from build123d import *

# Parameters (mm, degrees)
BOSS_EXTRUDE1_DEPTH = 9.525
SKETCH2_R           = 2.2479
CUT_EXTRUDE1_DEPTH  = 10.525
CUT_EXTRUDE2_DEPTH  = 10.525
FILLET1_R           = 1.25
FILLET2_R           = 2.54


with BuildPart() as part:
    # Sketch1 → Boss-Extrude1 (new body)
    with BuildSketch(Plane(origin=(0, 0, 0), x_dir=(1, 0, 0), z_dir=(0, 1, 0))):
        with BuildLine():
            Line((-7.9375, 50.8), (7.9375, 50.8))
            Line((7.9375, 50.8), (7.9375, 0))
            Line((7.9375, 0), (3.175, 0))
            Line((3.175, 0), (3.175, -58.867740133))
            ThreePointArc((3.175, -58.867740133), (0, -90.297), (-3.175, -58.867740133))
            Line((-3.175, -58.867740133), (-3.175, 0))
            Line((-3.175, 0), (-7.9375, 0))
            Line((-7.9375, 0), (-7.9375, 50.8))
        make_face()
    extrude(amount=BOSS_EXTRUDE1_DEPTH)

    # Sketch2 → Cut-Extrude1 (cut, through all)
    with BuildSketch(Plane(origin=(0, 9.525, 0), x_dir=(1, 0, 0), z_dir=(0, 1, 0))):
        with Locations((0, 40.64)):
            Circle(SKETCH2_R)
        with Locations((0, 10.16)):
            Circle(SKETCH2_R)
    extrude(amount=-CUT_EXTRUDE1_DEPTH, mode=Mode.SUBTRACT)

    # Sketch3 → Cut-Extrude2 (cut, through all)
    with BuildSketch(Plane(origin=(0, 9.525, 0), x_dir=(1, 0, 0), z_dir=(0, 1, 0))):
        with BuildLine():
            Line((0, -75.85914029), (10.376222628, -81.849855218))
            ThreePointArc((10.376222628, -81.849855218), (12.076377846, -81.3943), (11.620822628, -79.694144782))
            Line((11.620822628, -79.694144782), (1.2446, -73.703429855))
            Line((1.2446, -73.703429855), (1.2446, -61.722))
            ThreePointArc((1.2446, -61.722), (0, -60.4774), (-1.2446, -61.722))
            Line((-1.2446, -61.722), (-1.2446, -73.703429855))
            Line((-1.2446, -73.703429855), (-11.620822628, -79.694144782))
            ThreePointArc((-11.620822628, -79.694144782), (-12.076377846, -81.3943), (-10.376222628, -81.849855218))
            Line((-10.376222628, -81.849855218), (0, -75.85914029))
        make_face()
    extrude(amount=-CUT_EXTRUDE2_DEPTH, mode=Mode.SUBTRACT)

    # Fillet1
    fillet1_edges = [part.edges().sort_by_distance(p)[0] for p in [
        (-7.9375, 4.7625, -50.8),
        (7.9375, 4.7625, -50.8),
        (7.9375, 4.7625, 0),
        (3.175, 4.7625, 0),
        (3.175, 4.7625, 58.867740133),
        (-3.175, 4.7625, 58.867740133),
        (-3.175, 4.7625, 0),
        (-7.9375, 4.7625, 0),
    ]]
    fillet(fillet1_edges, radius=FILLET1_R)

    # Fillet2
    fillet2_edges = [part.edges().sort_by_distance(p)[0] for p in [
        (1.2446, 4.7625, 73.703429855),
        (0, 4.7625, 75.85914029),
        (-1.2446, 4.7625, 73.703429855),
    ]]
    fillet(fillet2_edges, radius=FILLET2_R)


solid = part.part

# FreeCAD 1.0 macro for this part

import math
import FreeCAD as App
import Part
import Sketcher
from FreeCAD import Vector
Q = App.Units.Quantity


def edges_at(feature, points):
    """Names of the edges that pass closest to the given points."""
    edges = feature.Shape.Edges
    near = lambda p: min(range(len(edges)), key=lambda i: edges[i].distToShape(Part.Vertex(*p))[0])
    return sorted({f"Edge{near(p) + 1}" for p in points})

doc = App.newDocument("Part")
body = doc.addObject("PartDesign::Body", "Body")

# Sketch on XZ plane
sketch1 = body.newObject("Sketcher::SketchObject", "Sketch")
sketch1.AttachmentSupport = (doc.getObject("XZ_Plane"), [""])
sketch1.MapMode = "FlatFace"
sketch1.addGeometry(Part.LineSegment(Vector(7.9, -50.8, 0), Vector(-7.9, -50.8, 0)), False)
sketch1.addGeometry(Part.LineSegment(Vector(-7.9, -50.8, 0), Vector(-7.9, 0, 0)), False)
sketch1.addGeometry(Part.LineSegment(Vector(-7.9, 0, 0), Vector(-3.2, 0, 0)), False)
sketch1.addGeometry(Part.LineSegment(Vector(-3.2, 0, 0), Vector(-3.2, 58.9, 0)), False)
sketch1.addGeometry(Part.ArcOfCircle(Part.Circle(Vector(0, 74.4, 0), Vector(0, 0, 1), 15.9), math.radians(-78), math.radians(258)), False)
sketch1.addGeometry(Part.LineSegment(Vector(3.2, 58.9, 0), Vector(3.2, 0, 0)), False)
sketch1.addGeometry(Part.LineSegment(Vector(3.2, 0, 0), Vector(7.9, 0, 0)), False)
sketch1.addGeometry(Part.LineSegment(Vector(7.9, 0, 0), Vector(7.9, -50.8, 0)), False)
sketch1.addConstraint(Sketcher.Constraint("Coincident", 0, 2, 1, 1))
sketch1.addConstraint(Sketcher.Constraint("Coincident", 1, 2, 2, 1))
sketch1.addConstraint(Sketcher.Constraint("Coincident", 2, 2, 3, 1))
sketch1.addConstraint(Sketcher.Constraint("Coincident", 3, 2, 4, 2))
sketch1.addConstraint(Sketcher.Constraint("Coincident", 4, 1, 5, 1))
sketch1.addConstraint(Sketcher.Constraint("Coincident", 5, 2, 6, 1))
sketch1.addConstraint(Sketcher.Constraint("Coincident", 6, 2, 7, 1))
sketch1.addConstraint(Sketcher.Constraint("Coincident", 7, 2, 0, 1))
sketch1.addConstraint(Sketcher.Constraint("Horizontal", 0))
sketch1.addConstraint(Sketcher.Constraint("Vertical", 1))
sketch1.addConstraint(Sketcher.Constraint("Horizontal", 2))
sketch1.addConstraint(Sketcher.Constraint("Vertical", 3))
sketch1.addConstraint(Sketcher.Constraint("Vertical", 5))
sketch1.addConstraint(Sketcher.Constraint("Horizontal", 6))
sketch1.addConstraint(Sketcher.Constraint("Vertical", 7))
sketch1.addConstraint(Sketcher.Constraint("Symmetric", 2, 2, 5, 2, -1, 1))
sketch1.addConstraint(Sketcher.Constraint("Symmetric", 1, 2, 6, 2, -2))
sketch1.addConstraint(Sketcher.Constraint("PointOnObject", 4, 3, -2))
sketch1.addConstraint(Sketcher.Constraint("DistanceY", 1, 1, 1, 2, Q("2 in")))
sketch1.addConstraint(Sketcher.Constraint("Radius", 4, Q("0.625 in")))
sketch1.addConstraint(Sketcher.Constraint("DistanceX", 0, 2, 0, 1, Q("0.625 in")))
sketch1.addConstraint(Sketcher.Constraint("DistanceX", 2, 1, 2, 2, Q("0.1875 in")))
sketch1.addConstraint(Sketcher.Constraint("DistanceY", -1, 1, 4, 3, Q("2.93 in")))
pad1 = body.newObject("PartDesign::Pad", "Pad")
pad1.Profile = sketch1
pad1.Length = Q("0.375 in")
pad1.Reversed = True

# Sketch on XZ plane
sketch2 = body.newObject("Sketcher::SketchObject", "Sketch001")
sketch2.AttachmentSupport = (doc.getObject("XZ_Plane"), [""])
sketch2.MapMode = "FlatFace"
sketch2.AttachmentOffset = App.Placement(Vector(0, 0, -0.375 * 25.4), App.Rotation())
sketch2.addGeometry(Part.Circle(Vector(0, -40.6, 0), Vector(0, 0, 1), 2.2), False)
sketch2.addGeometry(Part.Circle(Vector(0, -10.2, 0), Vector(0, 0, 1), 2.2), False)
sketch2.addConstraint(Sketcher.Constraint("Equal", 0, 1))
sketch2.addConstraint(Sketcher.Constraint("PointOnObject", 0, 3, -2))
sketch2.addConstraint(Sketcher.Constraint("PointOnObject", 1, 3, -2))
sketch2.addConstraint(Sketcher.Constraint("Diameter", 0, Q("0.177 in")))
sketch2.addConstraint(Sketcher.Constraint("DistanceY", 0, 3, -1, 1, Q("1.6 in")))
sketch2.addConstraint(Sketcher.Constraint("DistanceY", 1, 3, -1, 1, Q("0.4 in")))
pocket1 = body.newObject("PartDesign::Pocket", "Pocket")
pocket1.Profile = sketch2
pocket1.Type = "ThroughAll"
pocket1.Reversed = True

# Sketch on XZ plane
sketch3 = body.newObject("Sketcher::SketchObject", "Sketch002")
sketch3.AttachmentSupport = (doc.getObject("XZ_Plane"), [""])
sketch3.MapMode = "FlatFace"
sketch3.AttachmentOffset = App.Placement(Vector(0, 0, -0.375 * 25.4), App.Rotation())
sketch3.addGeometry(Part.LineSegment(Vector(0, 75.9, 0), Vector(10.4, 81.8, 0)), False)
sketch3.addGeometry(Part.ArcOfCircle(Part.Circle(Vector(11, 80.8, 0), Vector(0, 0, 1), 1.2), math.radians(-60), math.radians(120)), False)
sketch3.addGeometry(Part.LineSegment(Vector(11.6, 79.7, 0), Vector(1.2, 73.7, 0)), False)
sketch3.addGeometry(Part.LineSegment(Vector(1.2, 73.7, 0), Vector(1.2, 61.7, 0)), False)
sketch3.addGeometry(Part.ArcOfCircle(Part.Circle(Vector(0, 61.7, 0), Vector(0, 0, 1), 1.2), math.radians(180), math.radians(360)), False)
sketch3.addGeometry(Part.LineSegment(Vector(-1.2, 61.7, 0), Vector(-1.2, 73.7, 0)), False)
sketch3.addGeometry(Part.LineSegment(Vector(-1.2, 73.7, 0), Vector(-11.6, 79.7, 0)), False)
sketch3.addGeometry(Part.ArcOfCircle(Part.Circle(Vector(-11, 80.8, 0), Vector(0, 0, 1), 1.2), math.radians(60), math.radians(240)), False)
sketch3.addGeometry(Part.LineSegment(Vector(-10.4, 81.8, 0), Vector(0, 75.9, 0)), False)
sketch3.addConstraint(Sketcher.Constraint("Tangent", 0, 2, 1, 2))
sketch3.addConstraint(Sketcher.Constraint("Tangent", 1, 1, 2, 1))
sketch3.addConstraint(Sketcher.Constraint("Coincident", 2, 2, 3, 1))
sketch3.addConstraint(Sketcher.Constraint("Tangent", 3, 2, 4, 2))
sketch3.addConstraint(Sketcher.Constraint("Tangent", 4, 1, 5, 1))
sketch3.addConstraint(Sketcher.Constraint("Coincident", 5, 2, 6, 1))
sketch3.addConstraint(Sketcher.Constraint("Tangent", 6, 2, 7, 2))
sketch3.addConstraint(Sketcher.Constraint("Tangent", 7, 1, 8, 1))
sketch3.addConstraint(Sketcher.Constraint("Coincident", 8, 2, 0, 1))
sketch3.addConstraint(Sketcher.Constraint("Vertical", 3))
sketch3.addConstraint(Sketcher.Constraint("Vertical", 5))
sketch3.addConstraint(Sketcher.Constraint("Equal", 1, 4))
sketch3.addConstraint(Sketcher.Constraint("Equal", 4, 7))
sketch3.addConstraint(Sketcher.Constraint("Symmetric", 1, 3, 7, 3, -2))
sketch3.addConstraint(Sketcher.Constraint("Symmetric", 2, 2, 5, 2, -2))
sketch3.addConstraint(Sketcher.Constraint("PointOnObject", 8, 2, -2))
sketch3.addConstraint(Sketcher.Constraint("Parallel", 0, 2))
sketch3.addConstraint(Sketcher.Constraint("Equal", 0, 2))
sketch3.addConstraint(Sketcher.Constraint("Radius", 1, Q("0.049 in")))
sketch3.addConstraint(Sketcher.Constraint("DistanceY", -1, 1, 1, 3, Q("3.18 in")))
sketch3.addConstraint(Sketcher.Constraint("DistanceY", -1, 1, 4, 3, Q("2.43 in")))
sketch3.addConstraint(Sketcher.Constraint("DistanceY", 3, 2, 3, 1, 11.98143))
pocket2 = body.newObject("PartDesign::Pocket", "Pocket001")
pocket2.Profile = sketch3
pocket2.Type = "ThroughAll"
pocket2.Reversed = True
doc.recompute()

fillet = body.newObject("PartDesign::Fillet", "Fillet")
fillet.Base = (pocket2, edges_at(pocket2, [
    (-7.938, 4.763, -50.8),
    (7.938, 4.763, -50.8),
    (7.938, 4.763, 0),
    (3.175, 4.763, 0),
    (3.175, 4.763, 58.868),
    (-3.175, 4.763, 58.868),
    (-3.175, 4.763, 0),
    (-7.938, 4.763, 0),
]))
fillet.Radius = 1.25
doc.recompute()

fillet2 = body.newObject("PartDesign::Fillet", "Fillet001")
fillet2.Base = (fillet, edges_at(fillet, [(1.245, 4.763, 73.703), (0, 4.763, 75.859), (-1.245, 4.763, 73.703)]))
fillet2.Radius = Q("0.1 in")

doc.recompute()
